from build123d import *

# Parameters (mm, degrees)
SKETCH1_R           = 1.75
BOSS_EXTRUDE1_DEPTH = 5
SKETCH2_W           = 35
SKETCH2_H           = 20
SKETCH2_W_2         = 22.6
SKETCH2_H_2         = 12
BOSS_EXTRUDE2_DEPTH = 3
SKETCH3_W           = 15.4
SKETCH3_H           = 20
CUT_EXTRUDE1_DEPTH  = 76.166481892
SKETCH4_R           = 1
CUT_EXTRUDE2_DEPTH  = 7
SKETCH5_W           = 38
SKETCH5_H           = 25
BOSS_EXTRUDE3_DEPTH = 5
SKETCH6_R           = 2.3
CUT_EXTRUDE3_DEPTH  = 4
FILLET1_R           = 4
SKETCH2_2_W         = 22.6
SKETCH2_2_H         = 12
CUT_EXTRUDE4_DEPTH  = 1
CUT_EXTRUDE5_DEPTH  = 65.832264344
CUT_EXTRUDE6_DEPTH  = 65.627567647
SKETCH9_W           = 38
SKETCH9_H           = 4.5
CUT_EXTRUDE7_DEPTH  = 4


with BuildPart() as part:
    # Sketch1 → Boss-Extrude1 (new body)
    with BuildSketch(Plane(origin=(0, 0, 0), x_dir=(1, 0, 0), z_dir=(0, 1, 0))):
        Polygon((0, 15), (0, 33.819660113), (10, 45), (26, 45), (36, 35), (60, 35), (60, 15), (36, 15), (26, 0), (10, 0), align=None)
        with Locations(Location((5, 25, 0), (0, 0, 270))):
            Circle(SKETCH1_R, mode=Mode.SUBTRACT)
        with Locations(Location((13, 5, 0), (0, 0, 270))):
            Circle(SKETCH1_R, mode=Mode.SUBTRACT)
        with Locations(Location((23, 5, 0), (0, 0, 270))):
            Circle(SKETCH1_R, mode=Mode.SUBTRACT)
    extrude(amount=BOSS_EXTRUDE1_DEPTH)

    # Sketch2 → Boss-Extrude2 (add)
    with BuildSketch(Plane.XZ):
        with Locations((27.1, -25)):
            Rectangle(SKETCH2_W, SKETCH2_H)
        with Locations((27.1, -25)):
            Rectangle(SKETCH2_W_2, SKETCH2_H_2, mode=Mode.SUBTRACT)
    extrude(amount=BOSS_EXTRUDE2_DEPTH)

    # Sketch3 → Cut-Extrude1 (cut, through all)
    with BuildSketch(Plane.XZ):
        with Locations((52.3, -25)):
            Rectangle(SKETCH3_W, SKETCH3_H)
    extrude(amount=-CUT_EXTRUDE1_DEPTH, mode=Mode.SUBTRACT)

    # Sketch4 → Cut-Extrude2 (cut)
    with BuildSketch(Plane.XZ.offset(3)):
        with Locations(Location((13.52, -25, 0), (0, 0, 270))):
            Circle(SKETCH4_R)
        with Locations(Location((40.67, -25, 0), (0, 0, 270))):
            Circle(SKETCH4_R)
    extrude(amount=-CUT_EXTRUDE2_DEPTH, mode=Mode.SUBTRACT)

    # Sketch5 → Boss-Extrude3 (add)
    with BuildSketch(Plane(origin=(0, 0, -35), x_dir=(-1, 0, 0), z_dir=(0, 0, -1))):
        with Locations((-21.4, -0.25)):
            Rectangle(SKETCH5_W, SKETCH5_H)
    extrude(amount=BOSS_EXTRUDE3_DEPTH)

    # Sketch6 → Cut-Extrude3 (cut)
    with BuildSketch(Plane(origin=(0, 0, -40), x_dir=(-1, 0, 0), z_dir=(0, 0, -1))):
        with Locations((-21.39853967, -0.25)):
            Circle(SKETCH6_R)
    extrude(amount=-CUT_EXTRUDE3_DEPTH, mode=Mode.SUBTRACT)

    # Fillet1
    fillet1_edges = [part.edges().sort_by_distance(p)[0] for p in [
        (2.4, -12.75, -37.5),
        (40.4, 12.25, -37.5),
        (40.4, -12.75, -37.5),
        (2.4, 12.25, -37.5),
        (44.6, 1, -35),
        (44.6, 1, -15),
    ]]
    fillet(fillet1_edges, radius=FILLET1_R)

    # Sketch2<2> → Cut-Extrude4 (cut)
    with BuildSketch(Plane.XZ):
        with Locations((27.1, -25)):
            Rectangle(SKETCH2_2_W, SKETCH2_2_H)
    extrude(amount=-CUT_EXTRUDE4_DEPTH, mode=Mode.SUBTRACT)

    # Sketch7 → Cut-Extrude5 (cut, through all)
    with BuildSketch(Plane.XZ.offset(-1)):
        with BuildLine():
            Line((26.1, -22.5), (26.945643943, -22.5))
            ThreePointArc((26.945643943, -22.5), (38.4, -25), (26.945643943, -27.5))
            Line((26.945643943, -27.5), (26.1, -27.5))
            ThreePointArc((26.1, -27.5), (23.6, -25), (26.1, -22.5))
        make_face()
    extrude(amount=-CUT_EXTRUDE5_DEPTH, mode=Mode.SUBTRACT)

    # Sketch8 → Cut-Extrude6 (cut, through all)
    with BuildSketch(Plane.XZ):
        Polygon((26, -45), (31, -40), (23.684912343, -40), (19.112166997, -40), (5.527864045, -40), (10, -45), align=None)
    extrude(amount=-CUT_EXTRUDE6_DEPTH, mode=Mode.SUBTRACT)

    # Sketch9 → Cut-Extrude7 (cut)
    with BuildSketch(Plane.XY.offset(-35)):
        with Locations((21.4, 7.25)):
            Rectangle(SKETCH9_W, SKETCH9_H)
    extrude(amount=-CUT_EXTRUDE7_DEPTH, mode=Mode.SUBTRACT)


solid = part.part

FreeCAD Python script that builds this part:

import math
import FreeCAD as App
import Part
import Sketcher

V = App.Vector
Q = App.Units.Quantity


def edges_at(feature, points):
    """Names of the edges that pass closest to the given points."""
    edges = feature.Shape.Edges
    near = lambda p: min(range(len(edges)), key=lambda i: edges[i].distToShape(Part.Vertex(*p))[0])
    return sorted({f"Edge{near(p) + 1}" for p in points})

doc = App.newDocument("Part")
body = doc.addObject("PartDesign::Body", "Body")

# Sketch on XZ plane
sketch1 = body.newObject("Sketcher::SketchObject", "Sketch")
sketch1.AttachmentSupport = (doc.getObject("XZ_Plane"), [""])
sketch1.MapMode = "FlatFace"
sketch1.addGeometry([
    Part.LineSegment(V(0, -33.8, 0), V(0, -15, 0)),  # 0
    Part.LineSegment(V(0, -15, 0), V(10, 0, 0)),  # 1
    Part.LineSegment(V(10, 0, 0), V(26, 0, 0)),  # 2
    Part.LineSegment(V(26, 0, 0), V(36, -15, 0)),  # 3
    Part.LineSegment(V(36, -15, 0), V(60, -15, 0)),  # 4
    Part.LineSegment(V(60, -15, 0), V(60, -35, 0)),  # 5
    Part.LineSegment(V(60, -35, 0), V(36, -35, 0)),  # 6
    Part.LineSegment(V(36, -35, 0), V(26, -45, 0)),  # 7
    Part.LineSegment(V(26, -45, 0), V(10, -45, 0)),  # 8
    Part.LineSegment(V(10, -45, 0), V(0, -33.8, 0)),  # 9
    Part.Circle(V(23, -5, 0), V(0, 0, 1), 1.8),  # 10
    Part.Circle(V(13, -5, 0), V(0, 0, 1), 1.8),  # 11
    Part.Circle(V(5, -25, 0), V(0, 0, 1), 1.8),  # 12
], False)
sketch1.addConstraint([
    Sketcher.Constraint("Coincident", 0, 2, 1, 1),
    Sketcher.Constraint("Coincident", 1, 2, 2, 1),
    Sketcher.Constraint("Coincident", 2, 2, 3, 1),
    Sketcher.Constraint("Coincident", 3, 2, 4, 1),
    Sketcher.Constraint("Coincident", 4, 2, 5, 1),
    Sketcher.Constraint("Coincident", 5, 2, 6, 1),
    Sketcher.Constraint("Coincident", 6, 2, 7, 1),
    Sketcher.Constraint("Coincident", 7, 2, 8, 1),
    Sketcher.Constraint("Coincident", 8, 2, 9, 1),
    Sketcher.Constraint("Coincident", 9, 2, 0, 1),
    Sketcher.Constraint("Vertical", 0),
    Sketcher.Constraint("Horizontal", 2),
    Sketcher.Constraint("Horizontal", 4),
    Sketcher.Constraint("Vertical", 5),
    Sketcher.Constraint("Horizontal", 6),
    Sketcher.Constraint("Horizontal", 8),
    Sketcher.Constraint("Equal", 10, 11),
    Sketcher.Constraint("Equal", 11, 12),
    Sketcher.Constraint("PointOnObject", 0, 2, -2),
    Sketcher.Constraint("PointOnObject", 1, 2, -1),
    Sketcher.Constraint("Horizontal", 10, 3, 11, 3),
    Sketcher.Constraint("Horizontal", 0, 2, 3, 2),
    Sketcher.Constraint("Vertical", 3, 2, 6, 2),
    Sketcher.Constraint("Vertical", 2, 2, 7, 2),
    Sketcher.Constraint("Vertical", 1, 2, 8, 2),
    Sketcher.Constraint("Equal", 1, 3),
    Sketcher.Constraint("Diameter", 10, Q("3.5 mm")),
    Sketcher.Constraint("DistanceX", 2, 1, 2, 2, Q("16 mm")),
    Sketcher.Constraint("DistanceX", 4, 1, 4, 2, Q("24 mm")),
    Sketcher.Constraint("DistanceY", 5, 2, 5, 1, Q("20 mm")),
    Sketcher.Constraint("Angle", 7, Q("-135 deg")),
    Sketcher.Constraint("Distance", 9, Q("15 mm")),
    Sketcher.Constraint("DistanceX", -1, 1, 10, 3, Q("23 mm")),
    Sketcher.Constraint("DistanceY", 10, 3, -1, 1, Q("5 mm")),
    Sketcher.Constraint("DistanceX", -1, 1, 11, 3, Q("13 mm")),
    Sketcher.Constraint("DistanceX", -1, 1, 12, 3, Q("5 mm")),
    Sketcher.Constraint("DistanceY", 12, 3, -1, 1, Q("25 mm")),
    Sketcher.Constraint("DistanceY", 0, 2, -1, 1, Q("15 mm")),
    Sketcher.Constraint("DistanceX", -1, 1, 1, 2, Q("10 mm")),
])
pad1 = body.newObject("PartDesign::Pad", "Pad")
pad1.Profile = sketch1
pad1.Length = 5
pad1.Reversed = True

# Sketch on XZ plane
sketch2 = body.newObject("Sketcher::SketchObject", "Sketch001")
sketch2.AttachmentSupport = (doc.getObject("XZ_Plane"), [""])
sketch2.MapMode = "FlatFace"
sketch2.addGeometry([
    Part.LineSegment(V(10, -15, 0), V(10, -35, 0)),  # 0
    Part.LineSegment(V(10, -35, 0), V(45, -35, 0)),  # 1
    Part.LineSegment(V(45, -35, 0), V(45, -15, 0)),  # 2
    Part.LineSegment(V(45, -15, 0), V(10, -15, 0)),  # 3
    Part.LineSegment(V(38, -31, 0), V(16, -31, 0)),  # 4
    Part.LineSegment(V(16, -31, 0), V(16, -19, 0)),  # 5
    Part.LineSegment(V(16, -19, 0), V(38, -19, 0)),  # 6
    Part.LineSegment(V(38, -19, 0), V(38, -31, 0)),  # 7
], False)
sketch2.addConstraint([
    Sketcher.Constraint("Coincident", 0, 2, 1, 1),
    Sketcher.Constraint("Coincident", 1, 2, 2, 1),
    Sketcher.Constraint("Coincident", 2, 2, 3, 1),
    Sketcher.Constraint("Coincident", 3, 2, 0, 1),
    Sketcher.Constraint("Coincident", 4, 2, 5, 1),
    Sketcher.Constraint("Coincident", 5, 2, 6, 1),
    Sketcher.Constraint("Coincident", 6, 2, 7, 1),
    Sketcher.Constraint("Coincident", 7, 2, 4, 1),
    Sketcher.Constraint("Vertical", 0),
    Sketcher.Constraint("Horizontal", 1),
    Sketcher.Constraint("Vertical", 2),
    Sketcher.Constraint("Horizontal", 3),
    Sketcher.Constraint("Horizontal", 4),
    Sketcher.Constraint("Vertical", 5),
    Sketcher.Constraint("Horizontal", 6),
    Sketcher.Constraint("Vertical", 7),
    Sketcher.Constraint("DistanceX", 1, 1, 1, 2, Q("35 mm")),
    Sketcher.Constraint("DistanceY", 0, 2, 0, 1, Q("20 mm")),
    Sketcher.Constraint("DistanceY", 5, 1, 5, 2, Q("12 mm")),
    Sketcher.Constraint("DistanceX", 4, 2, 4, 1, Q("22.6 mm")),
    Sketcher.Constraint("DistanceY", 0, 2, -1, 1, Q("35 mm")),
    Sketcher.Constraint("DistanceY", 4, 2, -1, 1, Q("31 mm")),
    Sketcher.Constraint("DistanceX", -1, 1, 0, 2, Q("9.6 mm")),
    Sketcher.Constraint("DistanceX", -1, 1, 4, 2, Q("15.8 mm")),
])
pad2 = body.newObject("PartDesign::Pad", "Pad001")
pad2.Profile = sketch2
pad2.Length = 3

# Sketch on XZ plane
sketch3 = body.newObject("Sketcher::SketchObject", "Sketch002")
sketch3.AttachmentSupport = (doc.getObject("XZ_Plane"), [""])
sketch3.MapMode = "FlatFace"
sketch3.addGeometry([
    Part.LineSegment(V(45, -15, 0), V(45, -35, 0)),
    Part.LineSegment(V(45, -35, 0), V(60, -35, 0)),
    Part.LineSegment(V(60, -35, 0), V(60, -15, 0)),
    Part.LineSegment(V(60, -15, 0), V(45, -15, 0)),
], False)
sketch3.addConstraint([
    Sketcher.Constraint("Coincident", 0, 2, 1, 1),
    Sketcher.Constraint("Coincident", 1, 2, 2, 1),
    Sketcher.Constraint("Coincident", 2, 2, 3, 1),
    Sketcher.Constraint("Coincident", 3, 2, 0, 1),
    Sketcher.Constraint("Vertical", 0),
    Sketcher.Constraint("Horizontal", 1),
    Sketcher.Constraint("Vertical", 2),
    Sketcher.Constraint("Horizontal", 3),
    Sketcher.Constraint("DistanceY", 0, 2, 0, 1, Q("20 mm")),
    Sketcher.Constraint("DistanceX", 1, 1, 1, 2, Q("15.4 mm")),
    Sketcher.Constraint("DistanceY", 0, 2, -1, 1, Q("35 mm")),
    Sketcher.Constraint("DistanceX", -1, 1, 1, 2, Q("60 mm")),
])
pocket1 = body.newObject("PartDesign::Pocket", "Pocket")
pocket1.Profile = sketch3
pocket1.Type = "ThroughAll"

# Sketch on XZ plane
sketch4 = body.newObject("Sketcher::SketchObject", "Sketch003")
sketch4.AttachmentSupport = (doc.getObject("XZ_Plane"), [""])
sketch4.MapMode = "FlatFace"
sketch4.AttachmentOffset = App.Placement(V(0, 0, 3), App.Rotation())
sketch4.addGeometry([
    Part.Circle(V(13.5, -25, 0), V(0, 0, 1), 1),
    Part.Circle(V(40.7, -25, 0), V(0, 0, 1), 1),
], False)
sketch4.addConstraint([
    Sketcher.Constraint("Equal", 0, 1),
    Sketcher.Constraint("Horizontal", 0, 3, 1, 3),
    Sketcher.Constraint("Diameter", 0, Q("2 mm")),
    Sketcher.Constraint("DistanceY", 0, 3, -1, 1, Q("25 mm")),
    Sketcher.Constraint("DistanceX", -1, 1, 0, 3, Q("13.52 mm")),
    Sketcher.Constraint("DistanceX", -1, 1, 1, 3, Q("40.67 mm")),
])
pocket2 = body.newObject("PartDesign::Pocket", "Pocket001")
pocket2.Profile = sketch4
pocket2.Length = 7

# Sketch on XY plane
sketch5 = body.newObject("Sketcher::SketchObject", "Sketch004")
sketch5.AttachmentSupport = (doc.getObject("XY_Plane"), [""])
sketch5.MapMode = "FlatFace"
sketch5.AttachmentOffset = App.Placement(V(0, 0, -35), App.Rotation())
sketch5.addGeometry([
    Part.LineSegment(V(40, 12, 0), V(40, -13, 0)),
    Part.LineSegment(V(40, -13, 0), V(2, -13, 0)),
    Part.LineSegment(V(2, -13, 0), V(2, 12, 0)),
    Part.LineSegment(V(2, 12, 0), V(40, 12, 0)),
], False)
sketch5.addConstraint([
    Sketcher.Constraint("Coincident", 0, 2, 1, 1),
    Sketcher.Constraint("Coincident", 1, 2, 2, 1),
    Sketcher.Constraint("Coincident", 2, 2, 3, 1),
    Sketcher.Constraint("Coincident", 3, 2, 0, 1),
    Sketcher.Constraint("Vertical", 0),
    Sketcher.Constraint("Horizontal", 1),
    Sketcher.Constraint("Vertical", 2),
    Sketcher.Constraint("Horizontal", 3),
    Sketcher.Constraint("DistanceX", 1, 2, 1, 1, Q("38 mm")),
    Sketcher.Constraint("DistanceY", 0, 2, 0, 1, Q("25 mm")),
    Sketcher.Constraint("DistanceX", -1, 1, 0, 2, Q("40.4 mm")),
    Sketcher.Constraint("DistanceY", 0, 2, -1, 1, Q("12.75 mm")),
])
pad3 = body.newObject("PartDesign::Pad", "Pad002")
pad3.Profile = sketch5
pad3.Length = 5
pad3.Reversed = True

# Sketch on XY plane
sketch6 = body.newObject("Sketcher::SketchObject", "Sketch005")
sketch6.AttachmentSupport = (doc.getObject("XY_Plane"), [""])
sketch6.MapMode = "FlatFace"
sketch6.AttachmentOffset = App.Placement(V(0, 0, -40), App.Rotation())
sketch6.addGeometry(Part.Circle(V(21.4, -0.2, 0), V(0, 0, 1), 2.3), False)
sketch6.addConstraint([
    Sketcher.Constraint("Diameter", 0, Q("4.6 mm")),
    Sketcher.Constraint("DistanceY", 0, 3, -1, 1, Q("0.25 mm")),
    Sketcher.Constraint("DistanceX", -1, 1, 0, 3, Q("21.39854 mm")),
])
pocket3 = body.newObject("PartDesign::Pocket", "Pocket002")
pocket3.Profile = sketch6
pocket3.Length = 4
pocket3.Reversed = True
doc.recompute()

fillet = body.newObject("PartDesign::Fillet", "Fillet")
fillet.Base = (pocket3, edges_at(pocket3, [
    (2.4, -12.75, -37.5),
    (40.4, 12.25, -37.5),
    (40.4, -12.75, -37.5),
    (2.4, 12.25, -37.5),
    (44.6, 1, -35),
    (44.6, 1, -15),
]))
fillet.Radius = 4

# Sketch on XZ plane
sketch7 = body.newObject("Sketcher::SketchObject", "Sketch006")
sketch7.AttachmentSupport = (doc.getObject("XZ_Plane"), [""])
sketch7.MapMode = "FlatFace"
sketch7.addGeometry([
    Part.LineSegment(V(16, -19, 0), V(16, -31, 0)),
    Part.LineSegment(V(16, -31, 0), V(38, -31, 0)),
    Part.LineSegment(V(38, -31, 0), V(38, -19, 0)),
    Part.LineSegment(V(38, -19, 0), V(16, -19, 0)),
], False)
sketch7.addConstraint([
    Sketcher.Constraint("Coincident", 0, 2, 1, 1),
    Sketcher.Constraint("Coincident", 1, 2, 2, 1),
    Sketcher.Constraint("Coincident", 2, 2, 3, 1),
    Sketcher.Constraint("Coincident", 3, 2, 0, 1),
    Sketcher.Constraint("Vertical", 0),
    Sketcher.Constraint("Horizontal", 1),
    Sketcher.Constraint("Vertical", 2),
    Sketcher.Constraint("Horizontal", 3),
    Sketcher.Constraint("DistanceY", 0, 2, 0, 1, Q("12 mm")),
    Sketcher.Constraint("DistanceX", 1, 1, 1, 2, Q("22.6 mm")),
    Sketcher.Constraint("DistanceY", 0, 2, -1, 1, Q("31 mm")),
    Sketcher.Constraint("DistanceX", -1, 1, 0, 2, Q("15.8 mm")),
])
pocket4 = body.newObject("PartDesign::Pocket", "Pocket003")
pocket4.Profile = sketch7
pocket4.Length = 1

# Sketch on XZ plane
sketch8 = body.newObject("Sketcher::SketchObject", "Sketch007")
sketch8.AttachmentSupport = (doc.getObject("XZ_Plane"), [""])
sketch8.MapMode = "FlatFace"
sketch8.AttachmentOffset = App.Placement(V(0, 0, -1), App.Rotation())
sketch8.addGeometry([
    Part.LineSegment(V(26.9, -22.5, 0), V(26.1, -22.5, 0)),
    Part.ArcOfCircle(Part.Circle(V(26.1, -25, 0), V(0, 0, 1), 2.5), math.radians(90), math.radians(270)),
    Part.LineSegment(V(26.1, -27.5, 0), V(26.9, -27.5, 0)),
    Part.ArcOfCircle(Part.Circle(V(32.4, -25, 0), V(0, 0, 1), 6), math.radians(-155), math.radians(155)),
], False)
sketch8.addConstraint([
    Sketcher.Constraint("Tangent", 0, 2, 1, 1),
    Sketcher.Constraint("Tangent", 1, 2, 2, 1),
    Sketcher.Constraint("Coincident", 2, 2, 3, 1),
    Sketcher.Constraint("Coincident", 3, 2, 0, 1),
    Sketcher.Constraint("Horizontal", 0),
    Sketcher.Constraint("Horizontal", 2),
    Sketcher.Constraint("Horizontal", 1, 3, 3, 3),
    Sketcher.Constraint("Radius", 3, Q("6 mm")),
    Sketcher.Constraint("Radius", 1, Q("2.5 mm")),
    Sketcher.Constraint("DistanceY", 1, 3, -1, 1, Q("25 mm")),
    Sketcher.Constraint("DistanceX", -1, 1, 1, 3, Q("26.1 mm")),
    Sketcher.Constraint("DistanceX", -1, 1, 3, 3, Q("32.4 mm")),
])
pocket5 = body.newObject("PartDesign::Pocket", "Pocket004")
pocket5.Profile = sketch8
pocket5.Type = "ThroughAll"

# Sketch on XZ plane
sketch9 = body.newObject("Sketcher::SketchObject", "Sketch008")
sketch9.AttachmentSupport = (doc.getObject("XZ_Plane"), [""])
sketch9.MapMode = "FlatFace"
sketch9.addGeometry([
    Part.LineSegment(V(26, -45, 0), V(31, -40, 0)),
    Part.LineSegment(V(31, -40, 0), V(6, -40, 0)),
    Part.LineSegment(V(6, -40, 0), V(10, -45, 0)),
    Part.LineSegment(V(10, -45, 0), V(26, -45, 0)),
], False)
sketch9.addConstraint([
    Sketcher.Constraint("Coincident", 0, 2, 1, 1),
    Sketcher.Constraint("Coincident", 1, 2, 2, 1),
    Sketcher.Constraint("Coincident", 2, 2, 3, 1),
    Sketcher.Constraint("Coincident", 3, 2, 0, 1),
    Sketcher.Constraint("Horizontal", 1),
    Sketcher.Constraint("Horizontal", 3),
    Sketcher.Constraint("DistanceX", 3, 1, 3, 2, Q("16 mm")),
    Sketcher.Constraint("Angle", 0, Q("45 deg")),
    Sketcher.Constraint("DistanceX", -1, 1, 0, 2, Q("31 mm")),
    Sketcher.Constraint("DistanceY", 0, 2, -1, 1, Q("40 mm")),
    Sketcher.Constraint("DistanceX", -1, 1, 2, 2, Q("10 mm")),
    Sketcher.Constraint("DistanceX", 1, 2, 1, 1, Q("25.472136 mm")),
])
pocket6 = body.newObject("PartDesign::Pocket", "Pocket005")
pocket6.Profile = sketch9
pocket6.Type = "ThroughAll"

# Sketch on XY plane
sketch10 = body.newObject("Sketcher::SketchObject", "Sketch009")
sketch10.AttachmentSupport = (doc.getObject("XY_Plane"), [""])
sketch10.MapMode = "FlatFace"
sketch10.AttachmentOffset = App.Placement(V(0, 0, -35), App.Rotation())
sketch10.addGeometry([
    Part.LineSegment(V(2.4, 9.5, 0), V(2.4, 5, 0)),
    Part.LineSegment(V(2.4, 5, 0), V(40.4, 5, 0)),
    Part.LineSegment(V(40.4, 5, 0), V(40.4, 9.5, 0)),
    Part.LineSegment(V(40.4, 9.5, 0), V(2.4, 9.5, 0)),
], False)
sketch10.addConstraint([
    Sketcher.Constraint("Coincident", 0, 2, 1, 1),
    Sketcher.Constraint("Coincident", 1, 2, 2, 1),
    Sketcher.Constraint("Coincident", 2, 2, 3, 1),
    Sketcher.Constraint("Coincident", 3, 2, 0, 1),
    Sketcher.Constraint("Vertical", 0),
    Sketcher.Constraint("Horizontal", 1),
    Sketcher.Constraint("Vertical", 2),
    Sketcher.Constraint("Horizontal", 3),
    Sketcher.Constraint("DistanceX", 1, 1, 1, 2, Q("38 mm")),
    Sketcher.Constraint("DistanceY", 0, 2, 0, 1, Q("4.5 mm")),
    Sketcher.Constraint("DistanceY", -1, 1, 0, 2, Q("5 mm")),
    Sketcher.Constraint("DistanceX", -1, 1, 0, 2, Q("2.4 mm")),
])
pocket7 = body.newObject("PartDesign::Pocket", "Pocket006")
pocket7.Profile = sketch10
pocket7.Length = 4

doc.recompute()
